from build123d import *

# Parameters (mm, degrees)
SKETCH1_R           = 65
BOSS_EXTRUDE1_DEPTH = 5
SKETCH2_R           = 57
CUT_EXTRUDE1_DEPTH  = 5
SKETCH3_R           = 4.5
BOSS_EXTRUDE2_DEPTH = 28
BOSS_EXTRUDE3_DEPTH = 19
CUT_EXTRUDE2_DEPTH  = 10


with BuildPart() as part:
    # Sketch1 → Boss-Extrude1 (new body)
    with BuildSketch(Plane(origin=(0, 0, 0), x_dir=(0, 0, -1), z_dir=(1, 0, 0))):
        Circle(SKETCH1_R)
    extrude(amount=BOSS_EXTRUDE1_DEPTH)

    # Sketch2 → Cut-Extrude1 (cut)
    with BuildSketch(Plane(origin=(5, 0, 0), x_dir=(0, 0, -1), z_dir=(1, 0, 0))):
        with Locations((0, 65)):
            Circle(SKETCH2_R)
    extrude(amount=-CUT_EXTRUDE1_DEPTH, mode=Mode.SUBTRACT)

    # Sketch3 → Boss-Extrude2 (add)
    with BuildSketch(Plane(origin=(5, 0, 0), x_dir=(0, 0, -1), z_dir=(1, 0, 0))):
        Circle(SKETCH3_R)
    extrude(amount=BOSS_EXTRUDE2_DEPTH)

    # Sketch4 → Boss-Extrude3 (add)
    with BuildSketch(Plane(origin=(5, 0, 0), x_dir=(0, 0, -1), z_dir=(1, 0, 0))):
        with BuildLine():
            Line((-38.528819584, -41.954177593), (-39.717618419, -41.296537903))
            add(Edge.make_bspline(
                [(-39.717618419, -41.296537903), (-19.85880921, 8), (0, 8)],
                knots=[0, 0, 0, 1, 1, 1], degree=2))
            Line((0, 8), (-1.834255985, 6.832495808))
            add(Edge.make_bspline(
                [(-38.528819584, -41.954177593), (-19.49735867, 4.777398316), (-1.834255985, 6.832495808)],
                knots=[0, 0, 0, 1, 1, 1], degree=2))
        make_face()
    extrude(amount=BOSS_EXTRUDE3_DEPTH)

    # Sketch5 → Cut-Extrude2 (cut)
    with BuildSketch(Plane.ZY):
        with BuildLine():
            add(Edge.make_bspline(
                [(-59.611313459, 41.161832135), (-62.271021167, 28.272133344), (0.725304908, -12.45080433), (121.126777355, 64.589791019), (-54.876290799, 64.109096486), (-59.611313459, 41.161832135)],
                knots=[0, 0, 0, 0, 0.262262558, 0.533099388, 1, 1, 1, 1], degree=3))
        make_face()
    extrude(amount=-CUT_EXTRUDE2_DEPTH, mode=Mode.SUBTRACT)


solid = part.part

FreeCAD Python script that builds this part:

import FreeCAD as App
import Part
import Sketcher
from FreeCAD import Vector
Q = App.Units.Quantity

doc = App.newDocument("Part")
body = doc.addObject("PartDesign::Body", "Body")

# Sketch on YZ plane
sketch1 = body.newObject("Sketcher::SketchObject", "Sketch")
sketch1.AttachmentSupport = (doc.getObject("YZ_Plane"), [""])
sketch1.MapMode = "FlatFace"
sketch1.addGeometry(Part.Circle(Vector(0, 0, 0), Vector(0, 0, 1), 65), False)
sketch1.addConstraint([
    Sketcher.Constraint("Coincident", 0, 3, -1, 1),
    Sketcher.Constraint("Diameter", 0, Q("130 mm")),
])
pad1 = body.newObject("PartDesign::Pad", "Pad")
pad1.Profile = sketch1
pad1.Length = 5

# Sketch on YZ plane
sketch2 = body.newObject("Sketcher::SketchObject", "Sketch001")
sketch2.AttachmentSupport = (doc.getObject("YZ_Plane"), [""])
sketch2.MapMode = "FlatFace"
sketch2.AttachmentOffset = App.Placement(Vector(0, 0, 5), App.Rotation())
sketch2.addGeometry(Part.Circle(Vector(65, 0, 0), Vector(0, 0, 1), 57), False)
sketch2.addConstraint([
    Sketcher.Constraint("PointOnObject", 0, 3, -1),
    Sketcher.Constraint("Diameter", 0, Q("114 mm")),
    Sketcher.Constraint("DistanceX", -1, 1, 0, 3, Q("65 mm")),
])
pocket1 = body.newObject("PartDesign::Pocket", "Pocket")
pocket1.Profile = sketch2
pocket1.Length = 5

# Sketch on YZ plane
sketch3 = body.newObject("Sketcher::SketchObject", "Sketch002")
sketch3.AttachmentSupport = (doc.getObject("YZ_Plane"), [""])
sketch3.MapMode = "FlatFace"
sketch3.AttachmentOffset = App.Placement(Vector(0, 0, 5), App.Rotation())
sketch3.addGeometry(Part.Circle(Vector(0, 0, 0), Vector(0, 0, 1), 4.5), False)
sketch3.addConstraint([
    Sketcher.Constraint("Coincident", 0, 3, -1, 1),
    Sketcher.Constraint("Diameter", 0, Q("9 mm")),
])
pad2 = body.newObject("PartDesign::Pad", "Pad001")
pad2.Profile = sketch3
pad2.Length = 28

# Sketch on YZ plane
sketch4 = body.newObject("Sketcher::SketchObject", "Sketch003")
sketch4.AttachmentSupport = (doc.getObject("YZ_Plane"), [""])
sketch4.MapMode = "FlatFace"
sketch4.AttachmentOffset = App.Placement(Vector(0, 0, 5), App.Rotation())
sketch4.addGeometry([
    Part.LineSegment(Vector(-41.296538, 39.717618, 0), Vector(-41.954178, 38.52882, 0)),
    Part.BSplineCurve([Vector(-41.954178, 38.52882, 0), Vector(4.777398, 19.497359, 0), Vector(6.832496, 1.834256, 0)], [3, 3], [0, 1], False, 2, [1, 1, 1], False),
    Part.LineSegment(Vector(6.832496, 1.834256, 0), Vector(8, 0, 0)),
    Part.BSplineCurve([Vector(-41.296538, 39.717618, 0), Vector(8, 19.858809, 0), Vector(8, 0, 0)], [3, 3], [0, 1], False, 2, [1, 1, 1], False),
], False)
sketch4.addConstraint([
    Sketcher.Constraint("Block", 1),
    Sketcher.Constraint("Block", 3),
    Sketcher.Constraint("Coincident", 0, 2, 1, 1),
    Sketcher.Constraint("Coincident", 1, 2, 2, 1),
    Sketcher.Constraint("Coincident", 2, 2, 3, 2),
    Sketcher.Constraint("Coincident", 3, 1, 0, 1),
])
pad3 = body.newObject("PartDesign::Pad", "Pad002")
pad3.Profile = sketch4
pad3.Length = 19

# Sketch on YZ plane
sketch5 = body.newObject("Sketcher::SketchObject", "Sketch004")
sketch5.AttachmentSupport = (doc.getObject("YZ_Plane"), [""])
sketch5.MapMode = "FlatFace"
sketch5.addGeometry(Part.BSplineCurve([Vector(41.161832, -59.611313, 0), Vector(28.272133, -62.271021, 0), Vector(-12.450804, 0.725305, 0), Vector(64.589791, 121.126777, 0), Vector(64.109096, -54.876291, 0), Vector(41.161832, -59.611313, 0)], [4, 1, 1, 4], [0, 0.262262558, 0.533099388, 1], False, 3, [1, 1, 1, 1, 1, 1], False), False)
sketch5.addConstraint(Sketcher.Constraint("Block", 0))
pocket2 = body.newObject("PartDesign::Pocket", "Pocket001")
pocket2.Profile = sketch5
pocket2.Length = 10
pocket2.Reversed = True

doc.recompute()
